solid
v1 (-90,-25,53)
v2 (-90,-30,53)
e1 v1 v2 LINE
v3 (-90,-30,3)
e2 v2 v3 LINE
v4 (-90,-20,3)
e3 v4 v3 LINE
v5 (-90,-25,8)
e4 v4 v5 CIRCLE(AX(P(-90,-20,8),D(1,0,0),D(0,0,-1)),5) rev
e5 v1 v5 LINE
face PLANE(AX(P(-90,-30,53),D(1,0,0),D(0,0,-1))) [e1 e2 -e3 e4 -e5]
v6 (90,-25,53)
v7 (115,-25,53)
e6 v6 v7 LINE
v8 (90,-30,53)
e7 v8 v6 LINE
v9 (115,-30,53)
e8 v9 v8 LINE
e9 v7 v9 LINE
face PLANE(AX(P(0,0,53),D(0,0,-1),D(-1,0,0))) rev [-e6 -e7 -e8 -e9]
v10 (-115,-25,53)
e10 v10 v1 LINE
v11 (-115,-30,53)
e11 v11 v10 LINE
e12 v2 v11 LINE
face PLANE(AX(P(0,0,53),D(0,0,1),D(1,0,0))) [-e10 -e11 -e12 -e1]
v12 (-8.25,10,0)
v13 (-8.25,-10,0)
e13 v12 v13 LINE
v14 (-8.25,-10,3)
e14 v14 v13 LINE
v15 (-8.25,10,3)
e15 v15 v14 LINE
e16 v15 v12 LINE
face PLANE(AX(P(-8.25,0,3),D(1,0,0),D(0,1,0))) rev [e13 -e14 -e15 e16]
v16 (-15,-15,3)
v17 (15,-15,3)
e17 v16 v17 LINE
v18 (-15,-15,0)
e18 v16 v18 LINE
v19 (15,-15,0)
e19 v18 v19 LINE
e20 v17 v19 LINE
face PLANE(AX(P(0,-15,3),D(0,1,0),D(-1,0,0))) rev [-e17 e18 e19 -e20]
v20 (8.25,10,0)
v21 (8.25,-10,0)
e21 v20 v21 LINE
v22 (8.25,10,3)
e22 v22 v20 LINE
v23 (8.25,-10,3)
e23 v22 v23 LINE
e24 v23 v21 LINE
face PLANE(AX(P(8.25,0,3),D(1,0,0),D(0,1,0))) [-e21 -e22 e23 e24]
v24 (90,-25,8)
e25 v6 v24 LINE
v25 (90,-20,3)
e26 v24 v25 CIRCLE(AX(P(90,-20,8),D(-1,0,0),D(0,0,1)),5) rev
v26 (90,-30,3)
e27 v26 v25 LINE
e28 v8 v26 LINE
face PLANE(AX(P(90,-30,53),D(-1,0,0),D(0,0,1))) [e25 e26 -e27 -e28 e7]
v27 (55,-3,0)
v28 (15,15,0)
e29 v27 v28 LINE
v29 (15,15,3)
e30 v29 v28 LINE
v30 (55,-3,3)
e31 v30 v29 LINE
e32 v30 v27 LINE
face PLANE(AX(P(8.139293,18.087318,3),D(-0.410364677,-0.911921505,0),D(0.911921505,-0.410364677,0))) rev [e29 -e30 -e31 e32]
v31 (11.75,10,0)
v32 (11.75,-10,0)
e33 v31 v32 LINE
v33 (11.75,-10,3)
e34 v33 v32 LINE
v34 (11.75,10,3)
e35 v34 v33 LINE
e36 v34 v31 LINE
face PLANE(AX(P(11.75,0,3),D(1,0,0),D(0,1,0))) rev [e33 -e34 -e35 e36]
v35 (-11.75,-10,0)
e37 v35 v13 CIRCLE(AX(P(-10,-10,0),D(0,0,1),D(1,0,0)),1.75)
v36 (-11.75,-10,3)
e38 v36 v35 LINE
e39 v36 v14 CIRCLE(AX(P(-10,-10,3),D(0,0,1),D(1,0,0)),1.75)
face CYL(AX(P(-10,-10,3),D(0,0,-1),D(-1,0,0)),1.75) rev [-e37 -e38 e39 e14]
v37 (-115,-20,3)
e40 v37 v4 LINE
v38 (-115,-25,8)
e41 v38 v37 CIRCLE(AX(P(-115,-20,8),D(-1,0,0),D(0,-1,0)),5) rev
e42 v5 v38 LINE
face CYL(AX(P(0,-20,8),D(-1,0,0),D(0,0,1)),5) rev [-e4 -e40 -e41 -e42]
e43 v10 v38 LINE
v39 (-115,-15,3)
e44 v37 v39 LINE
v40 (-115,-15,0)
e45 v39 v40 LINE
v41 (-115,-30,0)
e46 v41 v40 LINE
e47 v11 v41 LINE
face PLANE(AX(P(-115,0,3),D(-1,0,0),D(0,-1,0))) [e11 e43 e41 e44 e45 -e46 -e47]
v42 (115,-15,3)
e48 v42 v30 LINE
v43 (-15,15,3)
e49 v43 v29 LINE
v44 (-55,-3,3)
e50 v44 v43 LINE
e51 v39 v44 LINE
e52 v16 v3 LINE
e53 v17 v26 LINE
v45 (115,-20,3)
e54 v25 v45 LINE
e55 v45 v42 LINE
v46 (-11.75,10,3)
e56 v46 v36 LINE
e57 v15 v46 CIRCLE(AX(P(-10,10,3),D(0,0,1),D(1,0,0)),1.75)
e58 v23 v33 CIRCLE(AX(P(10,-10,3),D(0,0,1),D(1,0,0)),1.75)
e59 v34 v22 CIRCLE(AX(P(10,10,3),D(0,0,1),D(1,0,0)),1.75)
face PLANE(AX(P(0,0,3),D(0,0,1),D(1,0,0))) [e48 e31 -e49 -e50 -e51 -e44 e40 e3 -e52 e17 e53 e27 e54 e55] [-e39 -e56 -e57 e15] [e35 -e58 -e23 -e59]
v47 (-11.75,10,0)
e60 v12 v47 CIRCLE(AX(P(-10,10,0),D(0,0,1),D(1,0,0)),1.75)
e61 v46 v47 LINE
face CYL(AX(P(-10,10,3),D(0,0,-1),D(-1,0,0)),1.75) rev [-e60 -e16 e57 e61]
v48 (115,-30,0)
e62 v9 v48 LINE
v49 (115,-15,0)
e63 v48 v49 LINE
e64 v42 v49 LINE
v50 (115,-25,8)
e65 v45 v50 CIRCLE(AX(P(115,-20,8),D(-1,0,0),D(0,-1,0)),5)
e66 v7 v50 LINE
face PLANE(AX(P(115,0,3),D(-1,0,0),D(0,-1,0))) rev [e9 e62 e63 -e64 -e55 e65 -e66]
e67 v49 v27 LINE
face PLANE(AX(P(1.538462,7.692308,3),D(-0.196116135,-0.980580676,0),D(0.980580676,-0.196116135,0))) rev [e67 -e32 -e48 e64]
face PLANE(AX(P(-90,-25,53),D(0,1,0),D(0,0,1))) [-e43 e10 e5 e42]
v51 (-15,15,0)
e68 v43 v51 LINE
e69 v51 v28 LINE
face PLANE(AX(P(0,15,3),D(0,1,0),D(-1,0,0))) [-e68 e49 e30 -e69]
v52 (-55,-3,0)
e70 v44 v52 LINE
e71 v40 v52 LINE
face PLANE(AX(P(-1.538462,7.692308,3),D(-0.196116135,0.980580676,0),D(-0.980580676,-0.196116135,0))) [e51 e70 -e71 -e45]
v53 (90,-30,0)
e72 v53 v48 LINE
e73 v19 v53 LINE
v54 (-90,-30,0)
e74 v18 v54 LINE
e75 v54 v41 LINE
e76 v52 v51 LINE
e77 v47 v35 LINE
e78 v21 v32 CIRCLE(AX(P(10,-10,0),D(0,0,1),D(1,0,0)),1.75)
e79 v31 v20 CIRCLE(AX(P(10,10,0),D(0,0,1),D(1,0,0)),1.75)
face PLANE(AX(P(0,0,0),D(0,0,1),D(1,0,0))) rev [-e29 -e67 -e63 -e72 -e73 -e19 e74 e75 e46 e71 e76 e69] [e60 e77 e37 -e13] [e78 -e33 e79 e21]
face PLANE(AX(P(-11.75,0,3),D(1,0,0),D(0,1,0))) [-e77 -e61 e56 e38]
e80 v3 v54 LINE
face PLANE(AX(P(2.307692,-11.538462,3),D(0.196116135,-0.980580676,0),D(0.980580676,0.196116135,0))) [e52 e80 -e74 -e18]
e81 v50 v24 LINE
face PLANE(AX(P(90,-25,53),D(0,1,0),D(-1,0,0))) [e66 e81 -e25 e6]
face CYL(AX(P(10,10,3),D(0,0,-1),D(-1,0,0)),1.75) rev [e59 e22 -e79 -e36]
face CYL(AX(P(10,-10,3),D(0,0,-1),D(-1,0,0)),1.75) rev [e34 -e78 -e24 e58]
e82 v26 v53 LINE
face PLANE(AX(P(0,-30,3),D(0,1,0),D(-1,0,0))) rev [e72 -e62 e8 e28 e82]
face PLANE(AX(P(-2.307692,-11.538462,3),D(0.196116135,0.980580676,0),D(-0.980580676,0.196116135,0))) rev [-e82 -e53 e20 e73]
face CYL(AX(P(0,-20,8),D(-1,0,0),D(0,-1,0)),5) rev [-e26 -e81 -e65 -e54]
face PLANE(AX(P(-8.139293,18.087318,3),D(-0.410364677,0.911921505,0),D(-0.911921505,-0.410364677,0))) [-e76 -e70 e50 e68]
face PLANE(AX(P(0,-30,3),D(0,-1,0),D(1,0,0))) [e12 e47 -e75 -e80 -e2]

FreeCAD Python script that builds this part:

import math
import FreeCAD as App
import Part
import Sketcher
Q = App.Units.Quantity


def edges_at(feature, points):
    """Names of the edges that pass closest to the given points."""
    edges = feature.Shape.Edges
    near = lambda p: min(range(len(edges)), key=lambda i: edges[i].distToShape(Part.Vertex(*p))[0])
    return sorted({f"Edge{near(p) + 1}" for p in points})

doc = App.newDocument("Part")
body = doc.addObject("PartDesign::Body", "Body")

# Sketch on XY plane
sketch1 = body.newObject("Sketcher::SketchObject", "Sketch")
sketch1.AttachmentSupport = (doc.getObject("XY_Plane"), [""])
sketch1.MapMode = "FlatFace"
sketch1.addGeometry([
    Part.LineSegment(App.Vector(15, -15, 0), App.Vector(90, -30, 0)),  # 0
    Part.LineSegment(App.Vector(90, -30, 0), App.Vector(115, -30, 0)),  # 1
    Part.LineSegment(App.Vector(115, -30, 0), App.Vector(115, -15, 0)),  # 2
    Part.LineSegment(App.Vector(115, -15, 0), App.Vector(55, -3, 0)),  # 3
    Part.LineSegment(App.Vector(55, -3, 0), App.Vector(15, 15, 0)),  # 4
    Part.LineSegment(App.Vector(15, 15, 0), App.Vector(-15, 15, 0)),  # 5
    Part.LineSegment(App.Vector(-15, 15, 0), App.Vector(-55, -3, 0)),  # 6
    Part.LineSegment(App.Vector(-55, -3, 0), App.Vector(-115, -15, 0)),  # 7
    Part.LineSegment(App.Vector(-115, -15, 0), App.Vector(-115, -30, 0)),  # 8
    Part.LineSegment(App.Vector(-115, -30, 0), App.Vector(-90, -30, 0)),  # 9
    Part.LineSegment(App.Vector(-90, -30, 0), App.Vector(-15, -15, 0)),  # 10
    Part.LineSegment(App.Vector(-15, -15, 0), App.Vector(15, -15, 0)),  # 11
    Part.ArcOfCircle(Part.Circle(App.Vector(10, 10, 0), App.Vector(0, 0, 1), 1.8), math.radians(0), math.radians(180)),  # 12
    Part.LineSegment(App.Vector(11.8, 10, 0), App.Vector(11.8, -10, 0)),  # 13
    Part.ArcOfCircle(Part.Circle(App.Vector(10, -10, 0), App.Vector(0, 0, 1), 1.8), math.radians(180), math.radians(360)),  # 14
    Part.LineSegment(App.Vector(8.2, -10, 0), App.Vector(8.2, 10, 0)),  # 15
    Part.ArcOfCircle(Part.Circle(App.Vector(-10, -10, 0), App.Vector(0, 0, 1), 1.8), math.radians(180), math.radians(360)),  # 16
    Part.LineSegment(App.Vector(-11.8, -10, 0), App.Vector(-11.8, 10, 0)),  # 17
    Part.ArcOfCircle(Part.Circle(App.Vector(-10, 10, 0), App.Vector(0, 0, 1), 1.8), math.radians(0), math.radians(180)),  # 18
    Part.LineSegment(App.Vector(-8.2, 10, 0), App.Vector(-8.2, -10, 0)),  # 19
], False)
sketch1.addConstraint([
    Sketcher.Constraint("Coincident", 0, 2, 1, 1),
    Sketcher.Constraint("Coincident", 1, 2, 2, 1),
    Sketcher.Constraint("Coincident", 2, 2, 3, 1),
    Sketcher.Constraint("Coincident", 3, 2, 4, 1),
    Sketcher.Constraint("Coincident", 4, 2, 5, 1),
    Sketcher.Constraint("Coincident", 5, 2, 6, 1),
    Sketcher.Constraint("Coincident", 6, 2, 7, 1),
    Sketcher.Constraint("Coincident", 7, 2, 8, 1),
    Sketcher.Constraint("Coincident", 8, 2, 9, 1),
    Sketcher.Constraint("Coincident", 9, 2, 10, 1),
    Sketcher.Constraint("Coincident", 10, 2, 11, 1),
    Sketcher.Constraint("Coincident", 11, 2, 0, 1),
    Sketcher.Constraint("Tangent", 12, 1, 13, 1),
    Sketcher.Constraint("Tangent", 13, 2, 14, 2),
    Sketcher.Constraint("Tangent", 14, 1, 15, 1),
    Sketcher.Constraint("Tangent", 15, 2, 12, 2),
    Sketcher.Constraint("Tangent", 16, 1, 17, 1),
    Sketcher.Constraint("Tangent", 17, 2, 18, 2),
    Sketcher.Constraint("Tangent", 18, 1, 19, 1),
    Sketcher.Constraint("Tangent", 19, 2, 16, 2),
    Sketcher.Constraint("Horizontal", 1),
    Sketcher.Constraint("Vertical", 2),
    Sketcher.Constraint("Horizontal", 5),
    Sketcher.Constraint("Vertical", 8),
    Sketcher.Constraint("Horizontal", 9),
    Sketcher.Constraint("Horizontal", 11),
    Sketcher.Constraint("Vertical", 13),
    Sketcher.Constraint("Vertical", 15),
    Sketcher.Constraint("Vertical", 17),
    Sketcher.Constraint("Vertical", 19),
    Sketcher.Constraint("Equal", 14, 16),
    Sketcher.Constraint("Symmetric", 12, 3, 16, 3, -1, 1),
    Sketcher.Constraint("Symmetric", 4, 2, 10, 2, -1, 1),
    Sketcher.Constraint("Symmetric", 3, 2, 6, 2, -2),
    Sketcher.Constraint("Symmetric", 2, 2, 7, 2, -2),
    Sketcher.Constraint("Symmetric", 0, 2, 9, 2, -2),
    Sketcher.Constraint("Parallel", 0, 3),
    Sketcher.Constraint("Parallel", 7, 10),
    Sketcher.Constraint("Horizontal", 14, 3, 16, 3),
    Sketcher.Constraint("Horizontal", 12, 3, 18, 3),
    Sketcher.Constraint("Horizontal", 7, 2, 10, 2),
    Sketcher.Constraint("Vertical", 5, 2, 10, 2),
    Sketcher.Constraint("DistanceX", 1, 1, 1, 2, Q("25 mm")),
    Sketcher.Constraint("DistanceX", 5, 2, 5, 1, Q("30 mm")),
    Sketcher.Constraint("DistanceY", 2, 1, 2, 2, Q("15 mm")),
    Sketcher.Constraint("DistanceY", 13, 2, 13, 1, Q("20 mm")),
    Sketcher.Constraint("Radius", 12, Q("1.75 mm")),
    Sketcher.Constraint("DistanceX", -1, 1, 12, 3, Q("10 mm")),
    Sketcher.Constraint("DistanceX", -1, 1, 0, 2, Q("90 mm")),
    Sketcher.Constraint("DistanceY", 0, 2, -1, 1, Q("30 mm")),
    Sketcher.Constraint("DistanceX", -1, 1, 3, 2, Q("55 mm")),
])
pad1 = body.newObject("PartDesign::Pad", "Pad")
pad1.Profile = sketch1
pad1.Length = 3

# Sketch on XY plane
sketch2 = body.newObject("Sketcher::SketchObject", "Sketch001")
sketch2.AttachmentSupport = (doc.getObject("XY_Plane"), [""])
sketch2.MapMode = "FlatFace"
sketch2.AttachmentOffset = App.Placement(App.Vector(0, 0, 3), App.Rotation())
sketch2.addGeometry([
    Part.LineSegment(App.Vector(115, -25, 0), App.Vector(115, -30, 0)),  # 0
    Part.LineSegment(App.Vector(115, -30, 0), App.Vector(90, -30, 0)),  # 1
    Part.LineSegment(App.Vector(90, -30, 0), App.Vector(90, -25, 0)),  # 2
    Part.LineSegment(App.Vector(90, -25, 0), App.Vector(115, -25, 0)),  # 3
    Part.LineSegment(App.Vector(-90, -25, 0), App.Vector(-90, -30, 0)),  # 4
    Part.LineSegment(App.Vector(-90, -30, 0), App.Vector(-115, -30, 0)),  # 5
    Part.LineSegment(App.Vector(-115, -30, 0), App.Vector(-115, -25, 0)),  # 6
    Part.LineSegment(App.Vector(-115, -25, 0), App.Vector(-90, -25, 0)),  # 7
], False)
sketch2.addConstraint([
    Sketcher.Constraint("Coincident", 0, 2, 1, 1),
    Sketcher.Constraint("Coincident", 1, 2, 2, 1),
    Sketcher.Constraint("Coincident", 2, 2, 3, 1),
    Sketcher.Constraint("Coincident", 3, 2, 0, 1),
    Sketcher.Constraint("Coincident", 4, 2, 5, 1),
    Sketcher.Constraint("Coincident", 5, 2, 6, 1),
    Sketcher.Constraint("Coincident", 6, 2, 7, 1),
    Sketcher.Constraint("Coincident", 7, 2, 4, 1),
    Sketcher.Constraint("Vertical", 0),
    Sketcher.Constraint("Horizontal", 1),
    Sketcher.Constraint("Vertical", 2),
    Sketcher.Constraint("Horizontal", 3),
    Sketcher.Constraint("Vertical", 4),
    Sketcher.Constraint("Horizontal", 5),
    Sketcher.Constraint("Vertical", 6),
    Sketcher.Constraint("Horizontal", 7),
    Sketcher.Constraint("Symmetric", 1, 2, 4, 2, -2),
    Sketcher.Constraint("Symmetric", 3, 2, 6, 2, -2),
    Sketcher.Constraint("DistanceX", 1, 2, 1, 1, Q("25 mm")),
    Sketcher.Constraint("DistanceY", 0, 2, 0, 1, Q("5 mm")),
    Sketcher.Constraint("DistanceX", -1, 1, 0, 2, Q("115 mm")),
    Sketcher.Constraint("DistanceY", 0, 2, -1, 1, Q("30 mm")),
])
pad2 = body.newObject("PartDesign::Pad", "Pad001")
pad2.Profile = sketch2
pad2.Length = 50
doc.recompute()

fillet = body.newObject("PartDesign::Fillet", "Fillet")
fillet.Base = (pad2, edges_at(pad2, [(102.5, -25, 3), (-102.5, -25, 3)]))
fillet.Radius = 5

doc.recompute()
